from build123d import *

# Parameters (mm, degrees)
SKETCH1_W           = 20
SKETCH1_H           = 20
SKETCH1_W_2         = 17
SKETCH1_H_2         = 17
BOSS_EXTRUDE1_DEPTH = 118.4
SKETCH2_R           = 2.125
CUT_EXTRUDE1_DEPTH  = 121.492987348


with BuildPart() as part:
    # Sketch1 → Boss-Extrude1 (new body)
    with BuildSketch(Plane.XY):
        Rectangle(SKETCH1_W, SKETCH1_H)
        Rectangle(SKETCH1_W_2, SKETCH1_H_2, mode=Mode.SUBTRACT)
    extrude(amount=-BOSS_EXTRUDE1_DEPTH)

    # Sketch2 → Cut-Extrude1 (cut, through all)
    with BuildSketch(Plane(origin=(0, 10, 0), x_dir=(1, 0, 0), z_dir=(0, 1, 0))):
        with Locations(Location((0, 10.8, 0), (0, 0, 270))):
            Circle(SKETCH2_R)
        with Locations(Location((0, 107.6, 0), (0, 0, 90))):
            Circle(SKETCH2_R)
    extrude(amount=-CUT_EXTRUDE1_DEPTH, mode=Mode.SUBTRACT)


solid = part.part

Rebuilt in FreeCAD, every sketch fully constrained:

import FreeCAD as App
import Part
import Sketcher

V = App.Vector


def add_polygon(sketch, points):
    """Adds a closed chain of lines whose ends are joined by coincident constraints."""
    first, n = sketch.GeometryCount, len(points)
    for a, b in zip(points, points[1:] + points[:1]):
        sketch.addGeometry(Part.LineSegment(App.Vector(*a, 0), App.Vector(*b, 0)), False)
    for i in range(n):
        sketch.addConstraint(Sketcher.Constraint("Coincident", first + i, 2, first + (i + 1) % n, 1))

doc = App.newDocument("Part")
body = doc.addObject("PartDesign::Body", "Body")

# Sketch on XY plane
sketch1 = body.newObject("Sketcher::SketchObject", "Sketch")
sketch1.AttachmentSupport = (doc.getObject("XY_Plane"), [""])
sketch1.MapMode = "FlatFace"
add_polygon(sketch1, [(-10, 10), (-10, -10), (10, -10), (10, 10)])  # lines 0-3
add_polygon(sketch1, [(8, -8), (-8, -8), (-8, 8), (8, 8)])  # lines 4-7
sketch1.addConstraint([
    Sketcher.Constraint("Vertical", 0),
    Sketcher.Constraint("Horizontal", 1),
    Sketcher.Constraint("Vertical", 2),
    Sketcher.Constraint("Horizontal", 3),
    Sketcher.Constraint("Horizontal", 4),
    Sketcher.Constraint("Vertical", 5),
    Sketcher.Constraint("Horizontal", 6),
    Sketcher.Constraint("Vertical", 7),
    Sketcher.Constraint("Symmetric", 0, 2, 2, 2, -1, 1),
    Sketcher.Constraint("Symmetric", 4, 2, 6, 2, -1, 1),
    Sketcher.Constraint("Equal", 3, 0),
    Sketcher.Constraint("Equal", 6, 5),
    Sketcher.Constraint("DistanceX", 1, 1, 1, 2, 20.0),
    Sketcher.Constraint("DistanceX", 4, 2, 4, 1, 17.0),
])
pad1 = body.newObject("PartDesign::Pad", "Pad")
pad1.Profile = sketch1
pad1.Length = 118.4
pad1.Reversed = True

# Sketch on XZ plane
sketch2 = body.newObject("Sketcher::SketchObject", "Sketch001")
sketch2.AttachmentSupport = (doc.getObject("XZ_Plane"), [""])
sketch2.MapMode = "FlatFace"
sketch2.AttachmentOffset = App.Placement(V(0, 0, -10), App.Rotation())
sketch2.addGeometry([
    Part.Circle(V(0, -10.8, 0), V(0, 0, 1), 2.1),
    Part.Circle(V(0, -107.6, 0), V(0, 0, 1), 2.1),
], False)
sketch2.addConstraint([
    Sketcher.Constraint("Equal", 0, 1),
    Sketcher.Constraint("PointOnObject", 0, 3, -2),
    Sketcher.Constraint("PointOnObject", 1, 3, -2),
    Sketcher.Constraint("Diameter", 0, 4.25),
    Sketcher.Constraint("DistanceY", 0, 3, -1, 1, 10.8),
    Sketcher.Constraint("DistanceY", 1, 3, -1, 1, 107.6),
])
pocket1 = body.newObject("PartDesign::Pocket", "Pocket")
pocket1.Profile = sketch2
pocket1.Type = "ThroughAll"
pocket1.Reversed = True

doc.recompute()
